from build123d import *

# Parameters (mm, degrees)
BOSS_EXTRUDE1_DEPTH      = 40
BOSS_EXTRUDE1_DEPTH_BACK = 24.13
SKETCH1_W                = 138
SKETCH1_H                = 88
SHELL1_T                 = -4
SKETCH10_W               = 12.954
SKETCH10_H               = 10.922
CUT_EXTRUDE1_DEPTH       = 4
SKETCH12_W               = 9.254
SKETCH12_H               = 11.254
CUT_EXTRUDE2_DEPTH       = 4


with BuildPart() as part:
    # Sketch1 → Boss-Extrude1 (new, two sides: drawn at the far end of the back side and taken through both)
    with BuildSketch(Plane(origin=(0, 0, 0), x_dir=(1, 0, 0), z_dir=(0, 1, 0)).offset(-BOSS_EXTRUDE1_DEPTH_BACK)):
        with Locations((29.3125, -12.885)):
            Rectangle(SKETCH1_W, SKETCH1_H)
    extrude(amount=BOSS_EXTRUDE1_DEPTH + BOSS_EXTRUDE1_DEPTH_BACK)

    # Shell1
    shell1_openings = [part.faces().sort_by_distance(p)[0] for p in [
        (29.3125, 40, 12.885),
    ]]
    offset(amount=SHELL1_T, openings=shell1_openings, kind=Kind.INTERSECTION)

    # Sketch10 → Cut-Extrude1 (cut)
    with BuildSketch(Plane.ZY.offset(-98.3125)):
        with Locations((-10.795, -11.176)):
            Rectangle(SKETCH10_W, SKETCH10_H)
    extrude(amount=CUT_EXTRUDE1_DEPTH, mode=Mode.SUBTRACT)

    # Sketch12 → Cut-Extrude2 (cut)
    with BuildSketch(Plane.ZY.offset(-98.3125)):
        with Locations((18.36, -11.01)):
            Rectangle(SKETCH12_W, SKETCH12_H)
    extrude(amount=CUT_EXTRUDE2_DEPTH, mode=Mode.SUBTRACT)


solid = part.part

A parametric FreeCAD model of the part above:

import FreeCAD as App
import Part
import Sketcher

V = App.Vector
Q = App.Units.Quantity


def faces_at(feature, points):
    """Names of the faces that lie closest to the given points."""
    faces = feature.Shape.Faces
    near = lambda p: min(range(len(faces)), key=lambda i: faces[i].distToShape(Part.Vertex(*p))[0])
    return sorted({f"Face{near(p) + 1}" for p in points})

doc = App.newDocument("Part")
body = doc.addObject("PartDesign::Body", "Body")

# Sketch on XZ plane
sketch1 = doc.addObject("Sketcher::SketchObject", "Sketch")
body.addObject(sketch1)
sketch1.AttachmentSupport = (doc.XZ_Plane, [""])
sketch1.MapMode = "FlatFace"
sketch1.addGeometry([
    Part.LineSegment(V(-40, -31, 0), V(-40, 57, 0)),
    Part.LineSegment(V(-40, 57, 0), V(98, 57, 0)),
    Part.LineSegment(V(98, 57, 0), V(98, -31, 0)),
    Part.LineSegment(V(98, -31, 0), V(-40, -31, 0)),
], False)
sketch1.addConstraint([
    Sketcher.Constraint("Coincident", 0, 2, 1, 1),
    Sketcher.Constraint("Coincident", 1, 2, 2, 1),
    Sketcher.Constraint("Coincident", 2, 2, 3, 1),
    Sketcher.Constraint("Coincident", 3, 2, 0, 1),
    Sketcher.Constraint("Vertical", 0),
    Sketcher.Constraint("Horizontal", 1),
    Sketcher.Constraint("Vertical", 2),
    Sketcher.Constraint("Horizontal", 3),
    Sketcher.Constraint("DistanceX", 1, 1, 1, 2, Q("138 mm")),
    Sketcher.Constraint("DistanceY", 0, 1, 0, 2, Q("88 mm")),
    Sketcher.Constraint("DistanceY", -1, 1, 0, 2, Q("56.885 mm")),
    Sketcher.Constraint("DistanceX", 0, 2, -1, 1, Q("39.6875 mm")),
])
pad1 = doc.addObject("PartDesign::Pad", "Pad")
body.addObject(pad1)
pad1.Profile = sketch1
pad1.Type = "TwoLengths"
pad1.Length = 40
pad1.Length2 = 24.13
pad1.Reversed = True
doc.recompute()

thickness = doc.addObject("PartDesign::Thickness", "Thickness")
body.addObject(thickness)
thickness.Base = (pad1, faces_at(pad1, [(29.312, 40, 12.885)]))
thickness.Value = 4
thickness.Reversed = True
thickness.Join = "Intersection"

# Sketch on YZ plane
sketch2 = doc.addObject("Sketcher::SketchObject", "Sketch001")
body.addObject(sketch2)
sketch2.AttachmentSupport = (doc.YZ_Plane, [""])
sketch2.MapMode = "FlatFace"
sketch2.AttachmentOffset = App.Placement(V(0, 0, 98.3125), App.Rotation())
sketch2.addGeometry([
    Part.LineSegment(V(-6, -17, 0), V(-17, -17, 0)),
    Part.LineSegment(V(-17, -17, 0), V(-17, -4, 0)),
    Part.LineSegment(V(-17, -4, 0), V(-6, -4, 0)),
    Part.LineSegment(V(-6, -4, 0), V(-6, -17, 0)),
], False)
sketch2.addConstraint([
    Sketcher.Constraint("Coincident", 0, 2, 1, 1),
    Sketcher.Constraint("Coincident", 1, 2, 2, 1),
    Sketcher.Constraint("Coincident", 2, 2, 3, 1),
    Sketcher.Constraint("Coincident", 3, 2, 0, 1),
    Sketcher.Constraint("Horizontal", 0),
    Sketcher.Constraint("Vertical", 1),
    Sketcher.Constraint("Horizontal", 2),
    Sketcher.Constraint("Vertical", 3),
    Sketcher.Constraint("DistanceX", 0, 2, 0, 1, Q("10.922 mm")),
    Sketcher.Constraint("DistanceY", 1, 1, 1, 2, Q("12.954 mm")),
    Sketcher.Constraint("DistanceX", 0, 2, -1, 1, Q("16.637 mm")),
    Sketcher.Constraint("DistanceY", 0, 2, -1, 1, Q("17.272 mm")),
])
pocket1 = doc.addObject("PartDesign::Pocket", "Pocket")
body.addObject(pocket1)
pocket1.Profile = sketch2
pocket1.Length = 4

# Sketch on YZ plane
sketch3 = doc.addObject("Sketcher::SketchObject", "Sketch002")
body.addObject(sketch3)
sketch3.AttachmentSupport = (doc.YZ_Plane, [""])
sketch3.MapMode = "FlatFace"
sketch3.AttachmentOffset = App.Placement(V(0, 0, 98.3125), App.Rotation())
sketch3.addGeometry([
    Part.LineSegment(V(-5, 14, 0), V(-17, 14, 0)),
    Part.LineSegment(V(-17, 14, 0), V(-17, 23, 0)),
    Part.LineSegment(V(-17, 23, 0), V(-5, 23, 0)),
    Part.LineSegment(V(-5, 23, 0), V(-5, 14, 0)),
], False)
sketch3.addConstraint([
    Sketcher.Constraint("Coincident", 0, 2, 1, 1),
    Sketcher.Constraint("Coincident", 1, 2, 2, 1),
    Sketcher.Constraint("Coincident", 2, 2, 3, 1),
    Sketcher.Constraint("Coincident", 3, 2, 0, 1),
    Sketcher.Constraint("Horizontal", 0),
    Sketcher.Constraint("Vertical", 1),
    Sketcher.Constraint("Horizontal", 2),
    Sketcher.Constraint("Vertical", 3),
    Sketcher.Constraint("DistanceX", 0, 2, 0, 1, Q("11.254 mm")),
    Sketcher.Constraint("DistanceY", 1, 1, 1, 2, Q("9.254 mm")),
    Sketcher.Constraint("DistanceX", 0, 2, -1, 1, Q("16.637 mm")),
    Sketcher.Constraint("DistanceY", -1, 1, 0, 2, Q("13.733 mm")),
])
pocket2 = doc.addObject("PartDesign::Pocket", "Pocket001")
body.addObject(pocket2)
pocket2.Profile = sketch3
pocket2.Length = 4

doc.recompute()
